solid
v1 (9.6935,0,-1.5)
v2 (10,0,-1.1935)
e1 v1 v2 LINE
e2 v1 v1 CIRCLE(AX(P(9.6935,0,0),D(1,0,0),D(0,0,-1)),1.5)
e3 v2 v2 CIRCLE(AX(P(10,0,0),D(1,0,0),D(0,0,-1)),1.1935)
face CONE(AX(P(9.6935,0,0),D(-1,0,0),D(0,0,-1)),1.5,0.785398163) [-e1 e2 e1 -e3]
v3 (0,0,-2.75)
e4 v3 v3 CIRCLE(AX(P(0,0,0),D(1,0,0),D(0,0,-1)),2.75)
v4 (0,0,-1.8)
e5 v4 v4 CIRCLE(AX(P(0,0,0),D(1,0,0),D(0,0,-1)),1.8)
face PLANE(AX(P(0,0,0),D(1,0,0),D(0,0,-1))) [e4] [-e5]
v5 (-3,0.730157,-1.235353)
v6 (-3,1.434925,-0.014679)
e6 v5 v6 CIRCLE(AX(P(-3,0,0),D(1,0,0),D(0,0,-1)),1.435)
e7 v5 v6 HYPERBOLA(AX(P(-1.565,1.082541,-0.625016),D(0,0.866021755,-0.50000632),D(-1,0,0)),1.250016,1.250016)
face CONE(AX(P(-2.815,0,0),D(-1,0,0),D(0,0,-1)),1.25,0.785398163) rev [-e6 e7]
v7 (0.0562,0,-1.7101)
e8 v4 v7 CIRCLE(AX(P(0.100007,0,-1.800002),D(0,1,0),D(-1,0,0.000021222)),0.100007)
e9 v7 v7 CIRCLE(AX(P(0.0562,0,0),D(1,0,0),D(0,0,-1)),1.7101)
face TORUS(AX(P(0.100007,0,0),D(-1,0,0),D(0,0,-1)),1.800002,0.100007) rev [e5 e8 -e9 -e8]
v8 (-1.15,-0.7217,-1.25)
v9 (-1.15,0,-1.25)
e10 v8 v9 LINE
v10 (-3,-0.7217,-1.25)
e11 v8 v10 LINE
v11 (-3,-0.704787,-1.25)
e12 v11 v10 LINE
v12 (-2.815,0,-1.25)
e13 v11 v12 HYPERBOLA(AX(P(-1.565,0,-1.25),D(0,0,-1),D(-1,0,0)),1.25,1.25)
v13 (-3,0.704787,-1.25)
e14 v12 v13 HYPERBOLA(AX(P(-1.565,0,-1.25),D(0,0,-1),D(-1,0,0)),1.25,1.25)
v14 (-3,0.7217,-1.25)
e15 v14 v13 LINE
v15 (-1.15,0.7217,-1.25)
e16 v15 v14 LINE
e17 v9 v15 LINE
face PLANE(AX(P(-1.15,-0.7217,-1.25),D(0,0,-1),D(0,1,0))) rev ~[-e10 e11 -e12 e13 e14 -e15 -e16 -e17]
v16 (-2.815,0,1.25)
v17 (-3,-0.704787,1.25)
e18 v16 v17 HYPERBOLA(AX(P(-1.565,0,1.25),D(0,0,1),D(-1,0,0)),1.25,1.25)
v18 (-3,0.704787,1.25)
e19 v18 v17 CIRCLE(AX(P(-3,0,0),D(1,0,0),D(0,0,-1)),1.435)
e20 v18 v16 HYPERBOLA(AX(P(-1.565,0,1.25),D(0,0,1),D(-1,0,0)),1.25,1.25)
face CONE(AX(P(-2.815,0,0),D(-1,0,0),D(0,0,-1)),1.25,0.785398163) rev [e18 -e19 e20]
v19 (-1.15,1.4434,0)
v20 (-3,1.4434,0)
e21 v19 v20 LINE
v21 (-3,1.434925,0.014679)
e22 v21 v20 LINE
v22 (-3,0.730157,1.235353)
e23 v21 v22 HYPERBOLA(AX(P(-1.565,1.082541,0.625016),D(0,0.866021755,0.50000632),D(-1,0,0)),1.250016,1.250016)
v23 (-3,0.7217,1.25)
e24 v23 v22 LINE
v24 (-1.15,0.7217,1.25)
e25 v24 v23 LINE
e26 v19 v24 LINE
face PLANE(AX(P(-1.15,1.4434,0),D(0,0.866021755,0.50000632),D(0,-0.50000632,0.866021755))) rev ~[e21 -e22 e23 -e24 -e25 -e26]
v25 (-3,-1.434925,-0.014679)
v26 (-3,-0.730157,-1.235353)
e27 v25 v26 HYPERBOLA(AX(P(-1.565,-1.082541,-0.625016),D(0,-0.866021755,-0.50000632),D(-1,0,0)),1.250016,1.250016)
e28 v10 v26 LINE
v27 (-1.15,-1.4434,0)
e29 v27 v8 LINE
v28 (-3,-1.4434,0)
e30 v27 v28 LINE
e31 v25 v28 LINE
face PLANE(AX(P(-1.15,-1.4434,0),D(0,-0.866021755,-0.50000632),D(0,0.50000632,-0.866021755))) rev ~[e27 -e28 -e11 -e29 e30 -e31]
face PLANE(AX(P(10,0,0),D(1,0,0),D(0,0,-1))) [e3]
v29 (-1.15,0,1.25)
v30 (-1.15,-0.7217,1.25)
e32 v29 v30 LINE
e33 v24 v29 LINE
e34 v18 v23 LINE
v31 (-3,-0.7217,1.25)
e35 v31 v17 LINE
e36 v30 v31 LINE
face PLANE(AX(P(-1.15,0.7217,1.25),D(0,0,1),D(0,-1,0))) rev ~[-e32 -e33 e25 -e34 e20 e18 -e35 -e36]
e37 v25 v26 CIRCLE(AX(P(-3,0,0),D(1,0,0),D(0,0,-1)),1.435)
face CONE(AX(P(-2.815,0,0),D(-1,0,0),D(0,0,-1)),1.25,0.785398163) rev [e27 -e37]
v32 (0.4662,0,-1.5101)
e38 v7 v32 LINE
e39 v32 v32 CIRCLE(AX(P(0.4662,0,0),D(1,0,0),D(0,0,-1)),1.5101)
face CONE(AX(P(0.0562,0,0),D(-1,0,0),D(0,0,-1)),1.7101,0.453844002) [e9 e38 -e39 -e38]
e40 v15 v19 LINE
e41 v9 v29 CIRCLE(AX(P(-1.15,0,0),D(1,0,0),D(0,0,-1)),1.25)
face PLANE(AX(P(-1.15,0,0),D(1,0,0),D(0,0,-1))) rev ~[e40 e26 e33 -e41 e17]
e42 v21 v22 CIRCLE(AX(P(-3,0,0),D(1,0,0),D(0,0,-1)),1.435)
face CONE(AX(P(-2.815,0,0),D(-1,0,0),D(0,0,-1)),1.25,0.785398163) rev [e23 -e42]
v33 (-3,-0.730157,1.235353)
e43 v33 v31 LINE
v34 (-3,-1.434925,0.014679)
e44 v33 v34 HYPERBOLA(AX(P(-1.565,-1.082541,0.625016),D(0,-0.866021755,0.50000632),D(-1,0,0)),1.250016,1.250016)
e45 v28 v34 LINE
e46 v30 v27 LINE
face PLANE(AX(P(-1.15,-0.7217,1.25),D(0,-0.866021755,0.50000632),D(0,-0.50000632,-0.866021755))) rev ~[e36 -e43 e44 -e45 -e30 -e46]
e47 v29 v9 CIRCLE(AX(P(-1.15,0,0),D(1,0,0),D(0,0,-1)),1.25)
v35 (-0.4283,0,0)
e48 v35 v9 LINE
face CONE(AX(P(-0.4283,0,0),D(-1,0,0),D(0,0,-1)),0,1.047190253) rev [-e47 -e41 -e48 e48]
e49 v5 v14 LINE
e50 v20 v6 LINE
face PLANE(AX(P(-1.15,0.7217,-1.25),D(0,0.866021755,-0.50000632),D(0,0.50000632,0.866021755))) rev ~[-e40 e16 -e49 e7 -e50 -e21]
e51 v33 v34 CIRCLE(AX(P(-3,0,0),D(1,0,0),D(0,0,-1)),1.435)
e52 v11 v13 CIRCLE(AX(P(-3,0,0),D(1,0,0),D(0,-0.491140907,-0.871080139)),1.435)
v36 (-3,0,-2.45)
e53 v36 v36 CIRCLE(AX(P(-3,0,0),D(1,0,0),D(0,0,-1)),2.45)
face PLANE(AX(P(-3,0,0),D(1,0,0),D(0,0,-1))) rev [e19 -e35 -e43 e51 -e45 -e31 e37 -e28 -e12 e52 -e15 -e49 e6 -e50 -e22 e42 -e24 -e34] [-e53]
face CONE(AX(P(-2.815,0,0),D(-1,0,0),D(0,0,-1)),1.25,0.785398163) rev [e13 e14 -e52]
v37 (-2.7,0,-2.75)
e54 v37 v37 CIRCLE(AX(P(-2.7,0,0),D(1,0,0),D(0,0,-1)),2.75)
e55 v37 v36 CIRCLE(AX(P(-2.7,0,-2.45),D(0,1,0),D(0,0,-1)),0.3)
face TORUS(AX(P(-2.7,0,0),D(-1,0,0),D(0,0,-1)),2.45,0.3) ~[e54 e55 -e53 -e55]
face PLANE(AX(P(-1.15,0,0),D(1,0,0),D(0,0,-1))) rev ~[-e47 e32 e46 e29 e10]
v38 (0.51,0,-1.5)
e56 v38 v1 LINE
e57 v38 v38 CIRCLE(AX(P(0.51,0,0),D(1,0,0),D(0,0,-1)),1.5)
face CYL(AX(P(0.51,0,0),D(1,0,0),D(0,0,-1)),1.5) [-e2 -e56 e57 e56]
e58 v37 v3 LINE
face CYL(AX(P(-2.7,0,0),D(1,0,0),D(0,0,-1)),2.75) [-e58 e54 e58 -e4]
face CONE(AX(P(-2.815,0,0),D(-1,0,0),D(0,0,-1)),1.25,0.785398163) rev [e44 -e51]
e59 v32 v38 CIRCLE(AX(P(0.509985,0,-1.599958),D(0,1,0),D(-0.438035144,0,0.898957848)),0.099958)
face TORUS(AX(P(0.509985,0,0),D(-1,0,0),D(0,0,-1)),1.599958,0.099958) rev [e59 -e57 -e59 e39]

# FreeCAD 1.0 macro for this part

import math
import FreeCAD as App
import Part
import Sketcher
Q = App.Units.Quantity

doc = App.newDocument("Part")
params = doc.addObject("Spreadsheet::Sheet", "Params")
for row, (alias, value) in enumerate([
    ("sketch1_radius", "0.1 mm"),
    ("sketch1_radius2", "0.3 mm"),
    ("sketch1_width", "2.7 mm"),
    ("sketch1_height", "0.95 mm"),
    ("revolution_angle", "360 deg"),
    ("pocket1_length", "2.6 mm"),
], start=1):
    params.set(f"A{row}", alias)
    params.set(f"B{row}", "=" + value)
    params.setAlias(f"B{row}", alias)

body = doc.addObject("PartDesign::Body", "Body")

# Sketch on XZ plane
sketch1 = body.newObject("Sketcher::SketchObject", "Sketch")
sketch1.AttachmentSupport = (doc.getObject("XZ_Plane"), [""])
sketch1.MapMode = "FlatFace"
sketch1.addGeometry([
    Part.LineSegment(App.Vector(-0.428, 0, 0), App.Vector(10, 0, 0)),  # 0
    Part.LineSegment(App.Vector(10, 0, 0), App.Vector(10, -1.194, 0)),  # 1
    Part.LineSegment(App.Vector(10, -1.194, 0), App.Vector(9.694, -1.5, 0)),  # 2
    Part.LineSegment(App.Vector(9.694, -1.5, 0), App.Vector(0.51, -1.5, 0)),  # 3
    Part.ArcOfCircle(Part.Circle(App.Vector(0.51, -1.6, 0), App.Vector(0, 0, 1), 0.1), math.radians(90), math.radians(116)),  # 4
    Part.LineSegment(App.Vector(0.466, -1.51, 0), App.Vector(0.056, -1.71, 0)),  # 5
    Part.ArcOfCircle(Part.Circle(App.Vector(0.1, -1.8, 0), App.Vector(0, 0, 1), 0.1), math.radians(116), math.radians(180)),  # 6
    Part.LineSegment(App.Vector(0, -1.8, 0), App.Vector(0, -2.75, 0)),  # 7
    Part.LineSegment(App.Vector(0, -2.75, 0), App.Vector(-2.7, -2.75, 0)),  # 8
    Part.ArcOfCircle(Part.Circle(App.Vector(-2.7, -2.45, 0), App.Vector(0, 0, 1), 0.3), math.radians(180), math.radians(270)),  # 9
    Part.LineSegment(App.Vector(-3, -2.45, 0), App.Vector(-3, -1.435, 0)),  # 10
    Part.LineSegment(App.Vector(-3, -1.435, 0), App.Vector(-2.815, -1.25, 0)),  # 11
    Part.LineSegment(App.Vector(-2.815, -1.25, 0), App.Vector(-1.15, -1.25, 0)),  # 12
    Part.LineSegment(App.Vector(-1.15, -1.25, 0), App.Vector(-0.428, 0, 0)),  # 13
], False)
sketch1.addConstraint([
    Sketcher.Constraint("Coincident", 0, 2, 1, 1),
    Sketcher.Constraint("Coincident", 1, 2, 2, 1),
    Sketcher.Constraint("Coincident", 2, 2, 3, 1),
    Sketcher.Constraint("Tangent", 3, 2, 4, 1),
    Sketcher.Constraint("Tangent", 4, 2, 5, 1),
    Sketcher.Constraint("Tangent", 5, 2, 6, 1),
    Sketcher.Constraint("Tangent", 6, 2, 7, 1),
    Sketcher.Constraint("Coincident", 7, 2, 8, 1),
    Sketcher.Constraint("Tangent", 8, 2, 9, 2),
    Sketcher.Constraint("Tangent", 9, 1, 10, 1),
    Sketcher.Constraint("Coincident", 10, 2, 11, 1),
    Sketcher.Constraint("Coincident", 11, 2, 12, 1),
    Sketcher.Constraint("Coincident", 12, 2, 13, 1),
    Sketcher.Constraint("Coincident", 13, 2, 0, 1),
    Sketcher.Constraint("Horizontal", 0),
    Sketcher.Constraint("Vertical", 1),
    Sketcher.Constraint("Horizontal", 3),
    Sketcher.Constraint("Vertical", 7),
    Sketcher.Constraint("Horizontal", 8),
    Sketcher.Constraint("Vertical", 10),
    Sketcher.Constraint("Horizontal", 12),
    Sketcher.Constraint("Equal", 4, 6),
    Sketcher.Constraint("PointOnObject", 0, 2, -1),
    Sketcher.Constraint("PointOnObject", 6, 2, -2),
    Sketcher.Constraint("Parallel", 2, 11),
    Sketcher.Constraint("Radius", 4, 0.1),
    Sketcher.Constraint("Radius", 9, 0.3),
    Sketcher.Constraint("Angle", 2, Q("-135 deg")),
    Sketcher.Constraint("Angle", 13, Q("59.9996 deg")),
    Sketcher.Constraint("DistanceX", 8, 2, 8, 1, 2.7),
    Sketcher.Constraint("DistanceX", -1, 1, 0, 2, 10.0),
    Sketcher.Constraint("DistanceY", 7, 2, 7, 1, 0.95),
    Sketcher.Constraint("DistanceY", 4, 3, -1, 1, 1.6),
    Sketcher.Constraint("DistanceY", 6, 3, -1, 1, 1.8),
    Sketcher.Constraint("DistanceY", 9, 3, 11, 2, 1.2),
    Sketcher.Constraint("DistanceX", 12, 1, 12, 2, 1.665),
    Sketcher.Constraint("DistanceY", 10, 1, 10, 2, 1.015),
    Sketcher.Constraint("DistanceX", -1, 1, 4, 3, 0.51),
    Sketcher.Constraint("DistanceX", 3, 2, 3, 1, 9.1835),
])
sketch1.setExpression("Constraints[25]", "Params.sketch1_radius")
sketch1.setExpression("Constraints[26]", "Params.sketch1_radius2")
sketch1.setExpression("Constraints[29]", "Params.sketch1_width")
sketch1.setExpression("Constraints[31]", "Params.sketch1_height")
revolution = body.newObject("PartDesign::Revolution", "Revolution")
revolution.Profile = sketch1
revolution.ReferenceAxis = (sketch1, ["H_Axis"])
revolution.setExpression("Angle", "Params.revolution_angle")

# Sketch on YZ plane
sketch2 = body.newObject("Sketcher::SketchObject", "Sketch001")
sketch2.AttachmentSupport = (doc.getObject("YZ_Plane"), [""])
sketch2.MapMode = "FlatFace"
sketch2.AttachmentOffset = App.Placement(App.Vector(0, 0, -1.15), App.Rotation())
sketch2.addGeometry([
    Part.LineSegment(App.Vector(0.7, 1.2, 0), App.Vector(-0.7, 1.2, 0)),  # 0
    Part.LineSegment(App.Vector(-0.7, 1.2, 0), App.Vector(-1.4, 0, 0)),  # 1
    Part.LineSegment(App.Vector(-1.4, 0, 0), App.Vector(-0.7, -1.2, 0)),  # 2
    Part.LineSegment(App.Vector(-0.7, -1.2, 0), App.Vector(0.7, -1.2, 0)),  # 3
    Part.LineSegment(App.Vector(0.7, -1.2, 0), App.Vector(1.4, 0, 0)),  # 4
    Part.LineSegment(App.Vector(1.4, 0, 0), App.Vector(0.7, 1.2, 0)),  # 5
], False)
sketch2.addConstraint([
    Sketcher.Constraint("Coincident", 0, 2, 1, 1),
    Sketcher.Constraint("Coincident", 1, 2, 2, 1),
    Sketcher.Constraint("Coincident", 2, 2, 3, 1),
    Sketcher.Constraint("Coincident", 3, 2, 4, 1),
    Sketcher.Constraint("Coincident", 4, 2, 5, 1),
    Sketcher.Constraint("Coincident", 5, 2, 0, 1),
    Sketcher.Constraint("Horizontal", 0),
    Sketcher.Constraint("Horizontal", 3),
    Sketcher.Constraint("Symmetric", 0, 2, 3, 2, -1, 1),
    Sketcher.Constraint("Symmetric", 1, 2, 4, 2, -1, 1),
    Sketcher.Constraint("PointOnObject", 1, 2, -1),
    Sketcher.Constraint("Parallel", 2, 5),
    Sketcher.Constraint("Vertical", 0, 2, 2, 2),
    Sketcher.Constraint("Angle", 1, Q("-120.0004 deg")),
    Sketcher.Constraint("DistanceY", 2, 2, 0, 2, 2.5),
    Sketcher.Constraint("DistanceX", 0, 2, 0, 1, 1.4434),
])
pocket1 = body.newObject("PartDesign::Pocket", "Pocket")
pocket1.Profile = sketch2
pocket1.setExpression("Length", "Params.pocket1_length")

doc.recompute()
